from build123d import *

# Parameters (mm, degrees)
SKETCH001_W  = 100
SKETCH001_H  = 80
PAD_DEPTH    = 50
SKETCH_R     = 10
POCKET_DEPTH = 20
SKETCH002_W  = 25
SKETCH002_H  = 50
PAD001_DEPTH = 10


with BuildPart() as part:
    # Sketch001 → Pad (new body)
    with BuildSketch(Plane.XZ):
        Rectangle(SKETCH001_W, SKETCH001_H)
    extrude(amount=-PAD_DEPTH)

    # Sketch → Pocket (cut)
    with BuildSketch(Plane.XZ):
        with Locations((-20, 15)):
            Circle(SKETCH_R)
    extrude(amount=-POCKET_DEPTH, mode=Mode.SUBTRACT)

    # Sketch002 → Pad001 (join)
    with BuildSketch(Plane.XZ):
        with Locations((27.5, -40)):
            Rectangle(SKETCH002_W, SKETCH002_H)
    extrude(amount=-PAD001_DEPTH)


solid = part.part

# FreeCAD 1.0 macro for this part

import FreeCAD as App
import Part
import Sketcher

V = App.Vector

doc = App.newDocument("Part")
body = doc.addObject("PartDesign::Body", "Body")

# Sketch on XZ plane
sketch1 = doc.addObject("Sketcher::SketchObject", "Sketch")
body.addObject(sketch1)
sketch1.AttachmentSupport = (doc.XZ_Plane, [""])
sketch1.MapMode = "FlatFace"
sketch1.addGeometry(Part.LineSegment(V(-50, 40, 0), V(-50, -40, 0)), False)
sketch1.addGeometry(Part.LineSegment(V(-50, -40, 0), V(50, -40, 0)), False)
sketch1.addGeometry(Part.LineSegment(V(50, -40, 0), V(50, 40, 0)), False)
sketch1.addGeometry(Part.LineSegment(V(50, 40, 0), V(-50, 40, 0)), False)
sketch1.addConstraint(Sketcher.Constraint("Coincident", 0, 2, 1, 1))
sketch1.addConstraint(Sketcher.Constraint("Coincident", 1, 2, 2, 1))
sketch1.addConstraint(Sketcher.Constraint("Coincident", 2, 2, 3, 1))
sketch1.addConstraint(Sketcher.Constraint("Coincident", 3, 2, 0, 1))
sketch1.addConstraint(Sketcher.Constraint("Vertical", 0))
sketch1.addConstraint(Sketcher.Constraint("Horizontal", 1))
sketch1.addConstraint(Sketcher.Constraint("Vertical", 2))
sketch1.addConstraint(Sketcher.Constraint("Horizontal", 3))
sketch1.addConstraint(Sketcher.Constraint("Symmetric", 0, 2, 2, 2, -1, 1))
sketch1.addConstraint(Sketcher.Constraint("DistanceX", 1, 1, 1, 2, 100.0))
sketch1.addConstraint(Sketcher.Constraint("DistanceY", 0, 2, 0, 1, 80.0))
pad1 = doc.addObject("PartDesign::Pad", "Pad")
body.addObject(pad1)
pad1.Profile = sketch1
pad1.Length = 50
pad1.Reversed = True

# Sketch on XZ plane
sketch2 = doc.addObject("Sketcher::SketchObject", "Sketch001")
body.addObject(sketch2)
sketch2.AttachmentSupport = (doc.XZ_Plane, [""])
sketch2.MapMode = "FlatFace"
sketch2.addGeometry(Part.Circle(V(-20, 15, 0), V(0, 0, 1), 10), False)
sketch2.addConstraint(Sketcher.Constraint("Diameter", 0, 20.0))
sketch2.addConstraint(Sketcher.Constraint("DistanceX", 0, 3, -1, 1, 20.0))
sketch2.addConstraint(Sketcher.Constraint("DistanceY", -1, 1, 0, 3, 15.0))
pocket1 = doc.addObject("PartDesign::Pocket", "Pocket")
body.addObject(pocket1)
pocket1.Profile = sketch2
pocket1.Length = 20

# Sketch on XZ plane
sketch3 = doc.addObject("Sketcher::SketchObject", "Sketch002")
body.addObject(sketch3)
sketch3.AttachmentSupport = (doc.XZ_Plane, [""])
sketch3.MapMode = "FlatFace"
sketch3.addGeometry(Part.LineSegment(V(15, -15, 0), V(15, -65, 0)), False)
sketch3.addGeometry(Part.LineSegment(V(15, -65, 0), V(40, -65, 0)), False)
sketch3.addGeometry(Part.LineSegment(V(40, -65, 0), V(40, -15, 0)), False)
sketch3.addGeometry(Part.LineSegment(V(40, -15, 0), V(15, -15, 0)), False)
sketch3.addConstraint(Sketcher.Constraint("Coincident", 0, 2, 1, 1))
sketch3.addConstraint(Sketcher.Constraint("Coincident", 1, 2, 2, 1))
sketch3.addConstraint(Sketcher.Constraint("Coincident", 2, 2, 3, 1))
sketch3.addConstraint(Sketcher.Constraint("Coincident", 3, 2, 0, 1))
sketch3.addConstraint(Sketcher.Constraint("Vertical", 0))
sketch3.addConstraint(Sketcher.Constraint("Horizontal", 1))
sketch3.addConstraint(Sketcher.Constraint("Vertical", 2))
sketch3.addConstraint(Sketcher.Constraint("Horizontal", 3))
sketch3.addConstraint(Sketcher.Constraint("DistanceX", 1, 1, 1, 2, 25.0))
sketch3.addConstraint(Sketcher.Constraint("DistanceY", 0, 2, 0, 1, 50.0))
sketch3.addConstraint(Sketcher.Constraint("DistanceX", -1, 1, 0, 2, 15.0))
sketch3.addConstraint(Sketcher.Constraint("DistanceY", 0, 2, -1, 1, 65.0))
pad2 = doc.addObject("PartDesign::Pad", "Pad001")
body.addObject(pad2)
pad2.Profile = sketch3
pad2.Length = 10
pad2.Reversed = True

doc.recompute()
